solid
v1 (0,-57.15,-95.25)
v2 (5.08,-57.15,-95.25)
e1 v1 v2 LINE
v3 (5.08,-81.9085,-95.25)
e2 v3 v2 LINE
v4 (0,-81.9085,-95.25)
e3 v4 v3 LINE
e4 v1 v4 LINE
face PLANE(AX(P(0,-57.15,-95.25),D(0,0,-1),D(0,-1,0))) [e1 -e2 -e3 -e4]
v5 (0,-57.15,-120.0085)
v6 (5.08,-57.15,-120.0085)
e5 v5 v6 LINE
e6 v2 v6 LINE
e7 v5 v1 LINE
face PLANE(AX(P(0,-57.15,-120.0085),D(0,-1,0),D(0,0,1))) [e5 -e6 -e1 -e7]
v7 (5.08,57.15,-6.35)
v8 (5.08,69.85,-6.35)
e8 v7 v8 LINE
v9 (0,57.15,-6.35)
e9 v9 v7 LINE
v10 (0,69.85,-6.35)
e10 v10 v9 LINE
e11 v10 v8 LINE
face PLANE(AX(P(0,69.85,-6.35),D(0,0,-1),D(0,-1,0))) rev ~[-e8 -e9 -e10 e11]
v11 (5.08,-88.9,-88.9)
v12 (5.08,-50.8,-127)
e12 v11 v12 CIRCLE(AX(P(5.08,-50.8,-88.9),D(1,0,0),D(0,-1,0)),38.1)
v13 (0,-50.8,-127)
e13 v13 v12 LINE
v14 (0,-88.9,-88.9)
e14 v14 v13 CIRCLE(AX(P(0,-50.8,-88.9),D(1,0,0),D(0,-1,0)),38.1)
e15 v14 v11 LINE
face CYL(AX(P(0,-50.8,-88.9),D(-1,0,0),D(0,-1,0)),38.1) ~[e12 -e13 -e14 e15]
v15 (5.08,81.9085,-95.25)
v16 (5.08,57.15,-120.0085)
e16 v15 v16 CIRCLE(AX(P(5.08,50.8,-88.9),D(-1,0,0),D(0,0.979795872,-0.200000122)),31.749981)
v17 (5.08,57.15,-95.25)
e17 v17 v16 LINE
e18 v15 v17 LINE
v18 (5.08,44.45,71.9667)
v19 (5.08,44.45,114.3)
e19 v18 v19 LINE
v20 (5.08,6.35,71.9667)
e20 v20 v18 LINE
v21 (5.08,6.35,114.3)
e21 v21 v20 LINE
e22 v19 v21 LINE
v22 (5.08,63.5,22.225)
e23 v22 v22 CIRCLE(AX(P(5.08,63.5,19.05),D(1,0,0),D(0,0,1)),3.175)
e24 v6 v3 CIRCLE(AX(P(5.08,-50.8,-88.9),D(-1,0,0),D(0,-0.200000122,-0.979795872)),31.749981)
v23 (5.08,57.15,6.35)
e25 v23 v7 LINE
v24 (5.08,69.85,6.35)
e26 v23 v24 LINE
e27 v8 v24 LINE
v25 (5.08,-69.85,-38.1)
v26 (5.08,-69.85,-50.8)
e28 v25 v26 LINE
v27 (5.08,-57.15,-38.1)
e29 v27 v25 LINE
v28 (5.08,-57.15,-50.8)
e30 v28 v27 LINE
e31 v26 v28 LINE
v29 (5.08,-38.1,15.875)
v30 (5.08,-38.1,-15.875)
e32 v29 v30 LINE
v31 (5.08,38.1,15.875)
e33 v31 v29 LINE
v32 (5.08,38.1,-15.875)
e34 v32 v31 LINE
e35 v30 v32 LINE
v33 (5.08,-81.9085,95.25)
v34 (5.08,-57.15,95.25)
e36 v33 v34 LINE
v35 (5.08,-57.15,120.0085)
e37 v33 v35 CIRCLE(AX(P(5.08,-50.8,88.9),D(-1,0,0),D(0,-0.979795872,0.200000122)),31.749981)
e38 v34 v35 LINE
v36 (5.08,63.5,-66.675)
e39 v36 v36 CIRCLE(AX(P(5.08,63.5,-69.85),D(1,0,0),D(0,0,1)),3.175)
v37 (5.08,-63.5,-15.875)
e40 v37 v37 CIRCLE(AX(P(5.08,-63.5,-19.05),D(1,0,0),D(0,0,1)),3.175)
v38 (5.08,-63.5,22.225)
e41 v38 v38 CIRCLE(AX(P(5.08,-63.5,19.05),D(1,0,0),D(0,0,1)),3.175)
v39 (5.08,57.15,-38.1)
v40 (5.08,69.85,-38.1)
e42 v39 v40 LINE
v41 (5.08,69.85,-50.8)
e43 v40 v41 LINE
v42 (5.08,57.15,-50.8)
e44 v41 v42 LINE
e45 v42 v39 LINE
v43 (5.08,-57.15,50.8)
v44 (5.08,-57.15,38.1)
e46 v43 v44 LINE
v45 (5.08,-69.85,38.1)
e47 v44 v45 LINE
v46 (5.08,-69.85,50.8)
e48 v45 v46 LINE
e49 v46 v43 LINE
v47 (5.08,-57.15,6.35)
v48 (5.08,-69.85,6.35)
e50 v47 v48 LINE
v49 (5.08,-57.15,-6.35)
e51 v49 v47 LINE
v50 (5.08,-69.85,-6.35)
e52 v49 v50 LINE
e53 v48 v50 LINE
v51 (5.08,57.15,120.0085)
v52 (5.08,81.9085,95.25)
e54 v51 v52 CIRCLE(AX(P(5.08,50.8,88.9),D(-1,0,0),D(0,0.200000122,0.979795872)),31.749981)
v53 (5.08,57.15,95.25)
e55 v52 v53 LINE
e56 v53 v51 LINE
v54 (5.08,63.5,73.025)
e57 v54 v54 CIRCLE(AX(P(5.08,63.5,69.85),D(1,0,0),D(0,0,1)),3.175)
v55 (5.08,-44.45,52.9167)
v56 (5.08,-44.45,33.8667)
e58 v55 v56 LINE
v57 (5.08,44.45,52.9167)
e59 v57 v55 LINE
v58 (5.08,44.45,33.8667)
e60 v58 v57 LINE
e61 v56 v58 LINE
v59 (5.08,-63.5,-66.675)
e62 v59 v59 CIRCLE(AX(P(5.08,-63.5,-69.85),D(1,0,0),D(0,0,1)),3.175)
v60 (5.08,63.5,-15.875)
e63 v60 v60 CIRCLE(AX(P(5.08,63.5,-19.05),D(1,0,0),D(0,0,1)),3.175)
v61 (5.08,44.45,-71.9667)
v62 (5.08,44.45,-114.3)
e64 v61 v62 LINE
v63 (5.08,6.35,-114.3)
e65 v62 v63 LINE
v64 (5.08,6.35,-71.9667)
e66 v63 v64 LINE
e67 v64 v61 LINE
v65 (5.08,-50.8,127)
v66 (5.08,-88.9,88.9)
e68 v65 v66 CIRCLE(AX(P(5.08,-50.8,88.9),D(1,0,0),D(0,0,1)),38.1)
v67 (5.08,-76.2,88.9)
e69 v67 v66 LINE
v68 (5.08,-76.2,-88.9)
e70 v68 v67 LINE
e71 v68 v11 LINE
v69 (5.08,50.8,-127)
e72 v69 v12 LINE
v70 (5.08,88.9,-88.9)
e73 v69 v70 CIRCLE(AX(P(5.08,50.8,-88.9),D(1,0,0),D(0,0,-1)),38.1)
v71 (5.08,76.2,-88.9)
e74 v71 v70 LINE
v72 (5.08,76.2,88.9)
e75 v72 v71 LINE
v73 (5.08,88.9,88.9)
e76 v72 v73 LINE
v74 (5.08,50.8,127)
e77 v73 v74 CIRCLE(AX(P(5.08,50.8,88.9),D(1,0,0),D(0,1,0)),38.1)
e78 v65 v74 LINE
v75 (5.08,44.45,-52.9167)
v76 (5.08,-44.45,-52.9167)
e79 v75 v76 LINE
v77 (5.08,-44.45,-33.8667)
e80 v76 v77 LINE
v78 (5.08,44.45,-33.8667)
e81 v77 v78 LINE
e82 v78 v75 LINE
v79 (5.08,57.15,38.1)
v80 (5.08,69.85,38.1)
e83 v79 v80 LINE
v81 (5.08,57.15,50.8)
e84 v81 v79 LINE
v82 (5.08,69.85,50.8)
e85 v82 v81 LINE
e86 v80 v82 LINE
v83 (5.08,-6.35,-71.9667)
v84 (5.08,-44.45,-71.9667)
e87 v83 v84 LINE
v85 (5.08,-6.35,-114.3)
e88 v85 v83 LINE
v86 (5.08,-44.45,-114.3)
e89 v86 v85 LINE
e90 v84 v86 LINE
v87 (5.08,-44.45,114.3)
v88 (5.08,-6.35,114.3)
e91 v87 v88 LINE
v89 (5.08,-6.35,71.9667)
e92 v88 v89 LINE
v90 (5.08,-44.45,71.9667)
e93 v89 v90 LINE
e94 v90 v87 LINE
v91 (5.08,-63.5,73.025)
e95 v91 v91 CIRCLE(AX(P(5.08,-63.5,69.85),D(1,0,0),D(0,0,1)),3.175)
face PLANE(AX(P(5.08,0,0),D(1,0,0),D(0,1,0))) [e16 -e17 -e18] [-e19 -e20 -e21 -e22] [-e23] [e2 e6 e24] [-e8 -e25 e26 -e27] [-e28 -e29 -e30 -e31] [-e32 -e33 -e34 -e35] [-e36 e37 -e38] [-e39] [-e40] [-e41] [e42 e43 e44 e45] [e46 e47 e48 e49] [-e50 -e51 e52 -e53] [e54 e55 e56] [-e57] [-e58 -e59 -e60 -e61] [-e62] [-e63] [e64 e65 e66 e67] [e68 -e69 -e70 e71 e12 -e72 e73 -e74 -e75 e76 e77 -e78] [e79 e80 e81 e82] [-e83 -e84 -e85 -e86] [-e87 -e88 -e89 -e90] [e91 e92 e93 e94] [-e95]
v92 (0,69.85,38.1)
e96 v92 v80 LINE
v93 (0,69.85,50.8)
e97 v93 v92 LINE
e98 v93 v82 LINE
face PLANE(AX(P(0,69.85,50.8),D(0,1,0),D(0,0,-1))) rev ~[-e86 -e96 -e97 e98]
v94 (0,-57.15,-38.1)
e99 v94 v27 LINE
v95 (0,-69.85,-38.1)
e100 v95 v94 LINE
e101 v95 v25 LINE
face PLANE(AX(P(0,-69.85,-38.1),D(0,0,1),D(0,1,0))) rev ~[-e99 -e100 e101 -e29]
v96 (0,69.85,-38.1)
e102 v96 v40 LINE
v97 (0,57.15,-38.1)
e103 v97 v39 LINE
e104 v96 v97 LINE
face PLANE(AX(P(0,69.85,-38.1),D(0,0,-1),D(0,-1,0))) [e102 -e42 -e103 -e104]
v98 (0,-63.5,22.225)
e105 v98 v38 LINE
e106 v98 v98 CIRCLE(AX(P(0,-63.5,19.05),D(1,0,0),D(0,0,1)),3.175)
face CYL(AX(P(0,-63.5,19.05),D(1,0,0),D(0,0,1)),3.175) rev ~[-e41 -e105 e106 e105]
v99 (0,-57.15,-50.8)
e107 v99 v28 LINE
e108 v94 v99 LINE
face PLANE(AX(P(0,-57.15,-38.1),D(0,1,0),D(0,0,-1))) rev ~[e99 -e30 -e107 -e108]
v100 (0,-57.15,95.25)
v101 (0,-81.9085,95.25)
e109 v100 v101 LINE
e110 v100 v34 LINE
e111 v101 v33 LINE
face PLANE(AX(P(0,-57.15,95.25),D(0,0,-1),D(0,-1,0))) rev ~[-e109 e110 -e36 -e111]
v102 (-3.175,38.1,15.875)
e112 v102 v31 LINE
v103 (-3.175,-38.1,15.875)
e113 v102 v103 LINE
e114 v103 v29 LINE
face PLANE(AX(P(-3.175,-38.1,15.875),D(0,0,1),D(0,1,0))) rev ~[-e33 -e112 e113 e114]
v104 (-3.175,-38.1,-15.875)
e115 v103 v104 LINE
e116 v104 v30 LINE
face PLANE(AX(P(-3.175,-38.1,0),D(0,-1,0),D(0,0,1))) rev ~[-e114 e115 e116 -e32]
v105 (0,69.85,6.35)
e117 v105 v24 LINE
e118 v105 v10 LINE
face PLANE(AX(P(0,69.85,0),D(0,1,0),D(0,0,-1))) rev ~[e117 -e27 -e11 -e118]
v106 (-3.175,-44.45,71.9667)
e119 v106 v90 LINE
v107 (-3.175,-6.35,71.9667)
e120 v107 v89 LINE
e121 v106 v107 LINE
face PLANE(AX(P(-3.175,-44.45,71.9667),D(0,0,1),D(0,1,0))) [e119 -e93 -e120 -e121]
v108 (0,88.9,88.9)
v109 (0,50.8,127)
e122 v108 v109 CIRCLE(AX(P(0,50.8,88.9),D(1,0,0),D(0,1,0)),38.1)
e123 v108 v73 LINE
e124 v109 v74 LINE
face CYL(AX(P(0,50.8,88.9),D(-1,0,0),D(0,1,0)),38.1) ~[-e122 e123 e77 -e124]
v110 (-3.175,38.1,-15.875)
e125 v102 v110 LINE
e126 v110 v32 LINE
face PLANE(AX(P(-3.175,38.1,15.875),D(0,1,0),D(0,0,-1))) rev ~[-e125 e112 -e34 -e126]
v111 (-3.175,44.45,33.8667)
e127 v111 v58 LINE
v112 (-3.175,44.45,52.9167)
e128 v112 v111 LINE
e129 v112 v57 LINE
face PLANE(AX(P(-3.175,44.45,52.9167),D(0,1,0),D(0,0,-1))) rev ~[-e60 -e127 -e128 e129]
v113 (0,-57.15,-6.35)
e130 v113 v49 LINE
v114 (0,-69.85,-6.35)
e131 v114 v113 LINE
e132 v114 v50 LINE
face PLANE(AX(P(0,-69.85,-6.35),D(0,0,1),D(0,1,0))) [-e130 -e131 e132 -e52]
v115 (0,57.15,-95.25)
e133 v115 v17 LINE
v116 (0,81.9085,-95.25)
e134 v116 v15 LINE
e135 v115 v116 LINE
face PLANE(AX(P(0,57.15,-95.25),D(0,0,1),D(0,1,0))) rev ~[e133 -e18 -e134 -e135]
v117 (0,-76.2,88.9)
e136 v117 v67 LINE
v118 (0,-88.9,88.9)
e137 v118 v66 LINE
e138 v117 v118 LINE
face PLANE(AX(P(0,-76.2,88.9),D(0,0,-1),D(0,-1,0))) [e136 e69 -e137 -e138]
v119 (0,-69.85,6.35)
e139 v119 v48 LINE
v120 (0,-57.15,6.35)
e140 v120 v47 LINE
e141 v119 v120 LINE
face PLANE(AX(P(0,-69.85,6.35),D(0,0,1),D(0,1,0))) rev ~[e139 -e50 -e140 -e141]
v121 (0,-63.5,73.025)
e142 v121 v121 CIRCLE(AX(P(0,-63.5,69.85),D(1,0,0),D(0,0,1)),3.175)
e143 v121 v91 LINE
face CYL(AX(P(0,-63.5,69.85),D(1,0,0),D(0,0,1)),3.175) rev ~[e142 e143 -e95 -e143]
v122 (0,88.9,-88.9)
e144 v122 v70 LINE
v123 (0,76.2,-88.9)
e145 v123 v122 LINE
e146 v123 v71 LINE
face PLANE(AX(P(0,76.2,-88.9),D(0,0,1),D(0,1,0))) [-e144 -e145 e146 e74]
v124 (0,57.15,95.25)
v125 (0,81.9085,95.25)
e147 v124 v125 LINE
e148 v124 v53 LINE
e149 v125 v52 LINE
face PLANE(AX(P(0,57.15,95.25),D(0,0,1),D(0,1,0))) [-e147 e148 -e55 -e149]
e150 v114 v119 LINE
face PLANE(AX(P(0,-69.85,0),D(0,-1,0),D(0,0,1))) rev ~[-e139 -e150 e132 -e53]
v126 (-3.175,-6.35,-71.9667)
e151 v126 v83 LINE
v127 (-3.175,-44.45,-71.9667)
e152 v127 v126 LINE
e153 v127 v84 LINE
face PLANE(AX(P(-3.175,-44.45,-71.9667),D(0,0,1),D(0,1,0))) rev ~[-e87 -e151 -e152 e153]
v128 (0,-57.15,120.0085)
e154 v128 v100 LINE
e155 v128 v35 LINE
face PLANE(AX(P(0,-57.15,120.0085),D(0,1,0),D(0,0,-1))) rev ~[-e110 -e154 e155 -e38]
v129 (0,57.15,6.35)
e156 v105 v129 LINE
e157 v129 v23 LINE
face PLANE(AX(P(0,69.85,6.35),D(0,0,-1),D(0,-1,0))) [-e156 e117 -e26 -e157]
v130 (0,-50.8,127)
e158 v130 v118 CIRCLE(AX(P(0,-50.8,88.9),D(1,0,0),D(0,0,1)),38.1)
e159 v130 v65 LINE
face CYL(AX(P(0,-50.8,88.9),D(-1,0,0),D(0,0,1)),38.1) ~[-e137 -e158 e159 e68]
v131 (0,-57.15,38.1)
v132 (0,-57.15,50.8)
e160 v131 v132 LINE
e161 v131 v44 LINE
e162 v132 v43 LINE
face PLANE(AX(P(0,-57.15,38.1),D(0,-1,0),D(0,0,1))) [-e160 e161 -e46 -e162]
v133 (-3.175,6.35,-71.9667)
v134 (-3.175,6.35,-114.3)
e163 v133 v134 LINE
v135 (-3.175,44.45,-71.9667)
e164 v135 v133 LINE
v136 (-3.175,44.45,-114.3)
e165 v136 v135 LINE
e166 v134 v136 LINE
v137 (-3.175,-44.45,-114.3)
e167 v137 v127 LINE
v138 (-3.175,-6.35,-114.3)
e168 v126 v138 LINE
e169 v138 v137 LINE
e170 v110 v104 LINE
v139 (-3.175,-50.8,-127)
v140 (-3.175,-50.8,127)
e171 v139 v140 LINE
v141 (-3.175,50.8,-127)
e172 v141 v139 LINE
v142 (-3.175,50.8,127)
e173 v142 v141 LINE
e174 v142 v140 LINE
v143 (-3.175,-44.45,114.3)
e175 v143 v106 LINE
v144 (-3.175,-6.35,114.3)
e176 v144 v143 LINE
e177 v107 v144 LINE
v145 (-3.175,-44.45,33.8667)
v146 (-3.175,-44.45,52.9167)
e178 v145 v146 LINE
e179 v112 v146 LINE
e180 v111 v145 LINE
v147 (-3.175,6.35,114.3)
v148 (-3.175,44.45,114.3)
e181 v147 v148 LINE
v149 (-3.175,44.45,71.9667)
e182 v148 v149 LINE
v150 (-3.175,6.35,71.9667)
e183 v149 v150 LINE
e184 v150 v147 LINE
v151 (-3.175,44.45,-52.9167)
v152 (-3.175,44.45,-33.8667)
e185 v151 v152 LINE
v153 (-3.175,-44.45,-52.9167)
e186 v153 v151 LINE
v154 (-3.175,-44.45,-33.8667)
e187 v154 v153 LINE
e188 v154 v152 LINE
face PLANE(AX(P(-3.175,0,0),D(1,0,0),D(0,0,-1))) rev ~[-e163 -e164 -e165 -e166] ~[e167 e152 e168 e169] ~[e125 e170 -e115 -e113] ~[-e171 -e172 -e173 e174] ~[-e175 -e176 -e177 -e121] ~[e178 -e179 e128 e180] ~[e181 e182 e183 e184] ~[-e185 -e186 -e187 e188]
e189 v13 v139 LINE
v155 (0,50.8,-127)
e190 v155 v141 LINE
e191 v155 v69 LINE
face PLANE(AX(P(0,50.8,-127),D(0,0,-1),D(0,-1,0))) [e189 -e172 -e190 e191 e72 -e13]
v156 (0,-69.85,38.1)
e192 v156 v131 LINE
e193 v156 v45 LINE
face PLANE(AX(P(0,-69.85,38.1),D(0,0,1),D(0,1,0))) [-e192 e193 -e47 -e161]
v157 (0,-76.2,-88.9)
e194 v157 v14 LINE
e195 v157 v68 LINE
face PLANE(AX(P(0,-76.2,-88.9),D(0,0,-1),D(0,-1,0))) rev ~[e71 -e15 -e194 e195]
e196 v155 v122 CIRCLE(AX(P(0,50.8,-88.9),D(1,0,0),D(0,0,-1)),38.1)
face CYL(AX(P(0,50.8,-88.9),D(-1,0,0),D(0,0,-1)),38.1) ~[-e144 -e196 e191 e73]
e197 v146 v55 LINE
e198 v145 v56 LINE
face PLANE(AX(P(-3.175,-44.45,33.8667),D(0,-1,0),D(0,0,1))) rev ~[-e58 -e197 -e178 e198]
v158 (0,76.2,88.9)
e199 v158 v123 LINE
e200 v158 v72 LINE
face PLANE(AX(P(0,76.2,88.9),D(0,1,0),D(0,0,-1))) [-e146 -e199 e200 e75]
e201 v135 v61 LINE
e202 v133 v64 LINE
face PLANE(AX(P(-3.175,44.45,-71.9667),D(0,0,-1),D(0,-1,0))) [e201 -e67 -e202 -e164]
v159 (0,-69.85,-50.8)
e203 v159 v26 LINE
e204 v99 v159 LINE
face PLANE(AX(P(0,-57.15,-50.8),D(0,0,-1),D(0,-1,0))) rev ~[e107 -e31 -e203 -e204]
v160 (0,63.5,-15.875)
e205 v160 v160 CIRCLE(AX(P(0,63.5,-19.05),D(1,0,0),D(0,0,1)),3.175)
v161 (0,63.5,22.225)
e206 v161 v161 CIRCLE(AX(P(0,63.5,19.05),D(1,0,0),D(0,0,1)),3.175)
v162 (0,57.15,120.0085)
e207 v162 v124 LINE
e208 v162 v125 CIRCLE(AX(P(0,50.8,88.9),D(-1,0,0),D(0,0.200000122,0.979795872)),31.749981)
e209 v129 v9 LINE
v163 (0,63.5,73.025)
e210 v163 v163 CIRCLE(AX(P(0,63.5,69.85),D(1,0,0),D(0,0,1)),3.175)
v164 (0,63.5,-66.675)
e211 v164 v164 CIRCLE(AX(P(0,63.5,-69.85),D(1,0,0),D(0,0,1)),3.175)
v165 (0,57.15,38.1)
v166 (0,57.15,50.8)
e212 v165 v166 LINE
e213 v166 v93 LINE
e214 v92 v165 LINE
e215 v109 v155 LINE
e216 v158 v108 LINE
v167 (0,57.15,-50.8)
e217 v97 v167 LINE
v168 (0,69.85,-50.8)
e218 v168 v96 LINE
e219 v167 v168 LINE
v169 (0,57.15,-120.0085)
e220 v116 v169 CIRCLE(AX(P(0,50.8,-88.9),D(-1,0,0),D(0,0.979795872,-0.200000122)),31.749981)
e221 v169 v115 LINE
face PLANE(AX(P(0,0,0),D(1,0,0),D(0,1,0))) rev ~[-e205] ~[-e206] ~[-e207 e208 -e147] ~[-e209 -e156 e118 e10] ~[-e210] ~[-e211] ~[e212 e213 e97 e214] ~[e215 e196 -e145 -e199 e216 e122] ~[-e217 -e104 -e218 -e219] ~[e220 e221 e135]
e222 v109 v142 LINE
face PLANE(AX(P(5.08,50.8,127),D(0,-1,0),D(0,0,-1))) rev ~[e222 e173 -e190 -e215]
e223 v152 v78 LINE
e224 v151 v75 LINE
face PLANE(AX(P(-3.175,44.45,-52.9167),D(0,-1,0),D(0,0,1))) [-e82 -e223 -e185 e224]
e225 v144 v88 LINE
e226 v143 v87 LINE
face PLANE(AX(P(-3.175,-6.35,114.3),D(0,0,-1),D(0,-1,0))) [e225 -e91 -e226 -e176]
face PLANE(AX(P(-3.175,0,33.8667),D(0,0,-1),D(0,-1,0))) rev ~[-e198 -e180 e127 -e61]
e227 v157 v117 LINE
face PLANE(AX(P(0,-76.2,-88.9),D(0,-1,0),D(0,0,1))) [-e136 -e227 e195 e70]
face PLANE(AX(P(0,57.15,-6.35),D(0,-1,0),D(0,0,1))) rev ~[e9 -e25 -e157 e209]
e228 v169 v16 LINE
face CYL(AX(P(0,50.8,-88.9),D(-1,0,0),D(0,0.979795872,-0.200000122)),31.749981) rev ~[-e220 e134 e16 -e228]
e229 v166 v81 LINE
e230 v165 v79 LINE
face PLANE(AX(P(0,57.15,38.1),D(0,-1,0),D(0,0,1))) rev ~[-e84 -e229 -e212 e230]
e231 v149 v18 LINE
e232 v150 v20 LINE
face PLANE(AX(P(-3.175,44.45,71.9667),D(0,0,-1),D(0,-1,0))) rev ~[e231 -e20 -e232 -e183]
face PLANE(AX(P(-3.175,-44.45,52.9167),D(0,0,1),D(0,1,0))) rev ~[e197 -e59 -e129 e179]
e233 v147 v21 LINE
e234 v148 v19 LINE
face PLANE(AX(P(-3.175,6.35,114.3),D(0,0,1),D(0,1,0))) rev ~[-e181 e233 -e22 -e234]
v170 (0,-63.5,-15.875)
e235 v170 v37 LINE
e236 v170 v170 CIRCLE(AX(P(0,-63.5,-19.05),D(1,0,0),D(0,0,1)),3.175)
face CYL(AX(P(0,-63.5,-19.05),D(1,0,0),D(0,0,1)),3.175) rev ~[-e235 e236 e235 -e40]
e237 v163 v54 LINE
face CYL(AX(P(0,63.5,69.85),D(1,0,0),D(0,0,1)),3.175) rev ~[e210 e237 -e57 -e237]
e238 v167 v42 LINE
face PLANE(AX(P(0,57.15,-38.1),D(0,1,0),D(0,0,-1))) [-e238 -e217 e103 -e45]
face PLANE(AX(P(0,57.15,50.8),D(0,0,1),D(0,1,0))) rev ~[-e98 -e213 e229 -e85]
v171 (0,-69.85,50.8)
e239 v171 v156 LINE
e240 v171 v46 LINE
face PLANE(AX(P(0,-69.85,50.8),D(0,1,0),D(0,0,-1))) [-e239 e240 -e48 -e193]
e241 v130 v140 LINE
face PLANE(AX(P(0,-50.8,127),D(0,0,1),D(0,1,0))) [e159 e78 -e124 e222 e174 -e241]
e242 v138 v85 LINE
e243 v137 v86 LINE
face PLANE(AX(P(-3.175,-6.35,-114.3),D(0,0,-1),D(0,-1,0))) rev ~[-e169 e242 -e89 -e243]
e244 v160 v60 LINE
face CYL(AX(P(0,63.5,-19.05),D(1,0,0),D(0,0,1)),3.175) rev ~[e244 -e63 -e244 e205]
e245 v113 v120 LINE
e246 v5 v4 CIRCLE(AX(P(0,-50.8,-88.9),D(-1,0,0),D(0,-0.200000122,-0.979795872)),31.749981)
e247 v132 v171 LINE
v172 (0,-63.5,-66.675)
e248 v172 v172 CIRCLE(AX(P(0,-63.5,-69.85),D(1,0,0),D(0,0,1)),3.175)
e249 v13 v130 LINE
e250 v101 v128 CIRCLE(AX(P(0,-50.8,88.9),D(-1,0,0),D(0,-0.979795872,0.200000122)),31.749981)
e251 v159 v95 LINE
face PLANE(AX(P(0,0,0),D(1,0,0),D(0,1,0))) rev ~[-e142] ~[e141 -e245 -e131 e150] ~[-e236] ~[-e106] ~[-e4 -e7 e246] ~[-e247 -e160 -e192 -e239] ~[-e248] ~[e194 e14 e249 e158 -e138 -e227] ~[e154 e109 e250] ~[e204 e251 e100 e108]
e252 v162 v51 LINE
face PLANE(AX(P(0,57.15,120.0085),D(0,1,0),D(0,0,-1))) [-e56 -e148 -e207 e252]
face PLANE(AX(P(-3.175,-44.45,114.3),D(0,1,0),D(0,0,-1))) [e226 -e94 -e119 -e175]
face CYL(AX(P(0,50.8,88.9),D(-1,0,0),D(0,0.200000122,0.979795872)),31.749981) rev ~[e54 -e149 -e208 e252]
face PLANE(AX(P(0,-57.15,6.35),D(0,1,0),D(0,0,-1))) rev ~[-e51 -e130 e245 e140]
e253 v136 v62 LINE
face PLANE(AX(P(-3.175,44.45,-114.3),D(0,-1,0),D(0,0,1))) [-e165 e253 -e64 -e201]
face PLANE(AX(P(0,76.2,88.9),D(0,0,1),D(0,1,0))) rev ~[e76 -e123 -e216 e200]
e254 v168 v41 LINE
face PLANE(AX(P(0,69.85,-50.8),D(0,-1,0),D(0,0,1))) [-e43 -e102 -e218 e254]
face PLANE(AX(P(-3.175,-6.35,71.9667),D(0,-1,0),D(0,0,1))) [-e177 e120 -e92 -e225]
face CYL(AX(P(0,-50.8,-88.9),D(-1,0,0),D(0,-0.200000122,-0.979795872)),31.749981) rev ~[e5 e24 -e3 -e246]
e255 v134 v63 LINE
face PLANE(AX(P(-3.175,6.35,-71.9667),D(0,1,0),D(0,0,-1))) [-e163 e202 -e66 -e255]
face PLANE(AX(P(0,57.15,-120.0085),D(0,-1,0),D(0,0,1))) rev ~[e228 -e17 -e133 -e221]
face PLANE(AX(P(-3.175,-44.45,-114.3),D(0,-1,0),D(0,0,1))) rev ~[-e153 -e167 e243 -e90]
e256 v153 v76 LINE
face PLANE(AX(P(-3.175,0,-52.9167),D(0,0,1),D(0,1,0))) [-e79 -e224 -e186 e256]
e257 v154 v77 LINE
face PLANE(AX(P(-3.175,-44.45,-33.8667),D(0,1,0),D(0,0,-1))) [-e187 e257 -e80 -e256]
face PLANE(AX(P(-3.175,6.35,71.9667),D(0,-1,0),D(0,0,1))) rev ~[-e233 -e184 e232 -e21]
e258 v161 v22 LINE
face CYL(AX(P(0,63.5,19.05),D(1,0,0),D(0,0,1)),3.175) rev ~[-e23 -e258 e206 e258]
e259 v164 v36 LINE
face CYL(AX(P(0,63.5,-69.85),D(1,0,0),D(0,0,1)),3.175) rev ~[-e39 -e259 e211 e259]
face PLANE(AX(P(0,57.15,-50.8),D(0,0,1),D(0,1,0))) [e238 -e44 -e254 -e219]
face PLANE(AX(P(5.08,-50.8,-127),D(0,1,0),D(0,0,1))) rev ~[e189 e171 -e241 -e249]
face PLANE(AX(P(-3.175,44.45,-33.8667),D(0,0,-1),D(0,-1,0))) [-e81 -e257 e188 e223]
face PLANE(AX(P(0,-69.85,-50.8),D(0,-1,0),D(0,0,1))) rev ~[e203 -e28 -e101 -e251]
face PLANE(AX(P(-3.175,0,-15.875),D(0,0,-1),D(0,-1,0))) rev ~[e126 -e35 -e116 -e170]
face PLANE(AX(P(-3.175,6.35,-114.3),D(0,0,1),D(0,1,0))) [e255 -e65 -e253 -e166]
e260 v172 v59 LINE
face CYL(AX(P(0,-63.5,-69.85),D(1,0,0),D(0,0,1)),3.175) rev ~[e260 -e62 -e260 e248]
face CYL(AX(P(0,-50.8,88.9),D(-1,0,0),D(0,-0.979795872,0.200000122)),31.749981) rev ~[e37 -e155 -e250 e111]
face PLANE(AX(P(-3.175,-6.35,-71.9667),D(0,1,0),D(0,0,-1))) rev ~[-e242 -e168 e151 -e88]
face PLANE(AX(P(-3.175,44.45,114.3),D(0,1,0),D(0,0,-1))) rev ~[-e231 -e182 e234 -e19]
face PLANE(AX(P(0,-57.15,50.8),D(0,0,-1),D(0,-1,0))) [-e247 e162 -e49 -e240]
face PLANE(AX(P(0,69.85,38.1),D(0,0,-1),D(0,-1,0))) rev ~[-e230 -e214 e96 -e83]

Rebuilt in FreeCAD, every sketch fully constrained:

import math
import FreeCAD as App
import Part
import Sketcher
from FreeCAD import Vector
Q = App.Units.Quantity

doc = App.newDocument("Part")
body = doc.addObject("PartDesign::Body", "Body")

sketch1 = body.newObject("Sketcher::SketchObject", "Sketch")
sketch1.AttachmentSupport = (doc.getObject("YZ_Plane"), [""])
sketch1.MapMode = "FlatFace"
sketch1.addGeometry([
    Part.LineSegment(Vector(50.8, 127, 0), Vector(-50.8, 127, 0)),
    Part.ArcOfCircle(Part.Circle(Vector(-50.8, 88.9, 0), Vector(0, 0, 1), 38.1), math.radians(90), math.radians(180)),
    Part.LineSegment(Vector(-88.9, 88.9, 0), Vector(-76.2, 88.9, 0)),
    Part.LineSegment(Vector(-76.2, 88.9, 0), Vector(-76.2, -88.9, 0)),
    Part.LineSegment(Vector(-76.2, -88.9, 0), Vector(-88.9, -88.9, 0)),
    Part.ArcOfCircle(Part.Circle(Vector(-50.8, -88.9, 0), Vector(0, 0, 1), 38.1), math.radians(180), math.radians(270)),
    Part.LineSegment(Vector(-50.8, -127, 0), Vector(50.8, -127, 0)),
    Part.ArcOfCircle(Part.Circle(Vector(50.8, -88.9, 0), Vector(0, 0, 1), 38.1), math.radians(-90), math.radians(0)),
    Part.LineSegment(Vector(88.9, -88.9, 0), Vector(76.2, -88.9, 0)),
    Part.LineSegment(Vector(76.2, -88.9, 0), Vector(76.2, 88.9, 0)),
    Part.LineSegment(Vector(76.2, 88.9, 0), Vector(88.9, 88.9, 0)),
    Part.ArcOfCircle(Part.Circle(Vector(50.8, 88.9, 0), Vector(0, 0, 1), 38.1), math.radians(0), math.radians(90)),
], False)
sketch1.addConstraint([
    Sketcher.Constraint("Tangent", 0, 2, 1, 1),
    Sketcher.Constraint("Coincident", 1, 2, 2, 1),
    Sketcher.Constraint("Coincident", 2, 2, 3, 1),
    Sketcher.Constraint("Coincident", 3, 2, 4, 1),
    Sketcher.Constraint("Coincident", 4, 2, 5, 1),
    Sketcher.Constraint("Tangent", 5, 2, 6, 1),
    Sketcher.Constraint("Tangent", 6, 2, 7, 1),
    Sketcher.Constraint("Coincident", 7, 2, 8, 1),
    Sketcher.Constraint("Coincident", 8, 2, 9, 1),
    Sketcher.Constraint("Coincident", 9, 2, 10, 1),
    Sketcher.Constraint("Coincident", 10, 2, 11, 1),
    Sketcher.Constraint("Tangent", 11, 2, 0, 1),
    Sketcher.Constraint("Horizontal", 0),
    Sketcher.Constraint("Horizontal", 2),
    Sketcher.Constraint("Vertical", 3),
    Sketcher.Constraint("Horizontal", 4),
    Sketcher.Constraint("Horizontal", 6),
    Sketcher.Constraint("Horizontal", 8),
    Sketcher.Constraint("Vertical", 9),
    Sketcher.Constraint("Horizontal", 10),
    Sketcher.Constraint("Equal", 1, 5),
    Sketcher.Constraint("Equal", 5, 7),
    Sketcher.Constraint("Equal", 7, 11),
    Sketcher.Constraint("Symmetric", 1, 3, 7, 3, -1, 1),
    Sketcher.Constraint("Symmetric", 2, 2, 8, 2, -1, 1),
    Sketcher.Constraint("Symmetric", 4, 2, 10, 2, -1, 1),
    Sketcher.Constraint("Symmetric", 4, 2, 7, 2, -2),
    Sketcher.Constraint("Horizontal", 11, 3, 1, 2),
    Sketcher.Constraint("Radius", 1, Q("1.5 in")),
    Sketcher.Constraint("DistanceY", -1, 1, 0, 2, Q("5 in")),
    Sketcher.Constraint("DistanceX", 2, 2, -1, 1, Q("3 in")),
    Sketcher.Constraint("DistanceX", 2, 2, 1, 3, Q("1 in")),
])
pad1 = body.newObject("PartDesign::Pad", "Pad")
pad1.Profile = sketch1
pad1.Length = Q("0.2 in")

sketch2 = body.newObject("Sketcher::SketchObject", "Sketch001")
sketch2.AttachmentSupport = (doc.getObject("YZ_Plane"), [""])
sketch2.MapMode = "FlatFace"
sketch2.AttachmentOffset = App.Placement(Vector(0, 0, 0.2 * 25.4), App.Rotation())
sketch2.addGeometry([
    Part.LineSegment(Vector(50.8, -127, 0), Vector(50.8, 127, 0)),
    Part.LineSegment(Vector(50.8, 127, 0), Vector(-50.8, 127, 0)),
    Part.LineSegment(Vector(-50.8, 127, 0), Vector(-50.8, -127, 0)),
    Part.LineSegment(Vector(-50.8, -127, 0), Vector(50.8, -127, 0)),
], False)
sketch2.addConstraint([
    Sketcher.Constraint("Coincident", 0, 2, 1, 1),
    Sketcher.Constraint("Coincident", 1, 2, 2, 1),
    Sketcher.Constraint("Coincident", 2, 2, 3, 1),
    Sketcher.Constraint("Coincident", 3, 2, 0, 1),
    Sketcher.Constraint("Vertical", 0),
    Sketcher.Constraint("Horizontal", 1),
    Sketcher.Constraint("Vertical", 2),
    Sketcher.Constraint("Horizontal", 3),
    Sketcher.Constraint("Symmetric", 0, 2, 2, 2, -1, 1),
    Sketcher.Constraint("DistanceX", 1, 2, 1, 1, Q("4 in")),
    Sketcher.Constraint("DistanceY", 0, 1, 0, 2, Q("10 in")),
])
pad2 = body.newObject("PartDesign::Pad", "Pad001")
pad2.Profile = sketch2
pad2.Length = Q("0.325 in")
pad2.Reversed = True

sketch3 = body.newObject("Sketcher::SketchObject", "Sketch002")
sketch3.AttachmentSupport = (doc.getObject("YZ_Plane"), [""])
sketch3.MapMode = "FlatFace"
sketch3.AttachmentOffset = App.Placement(Vector(0, 0, -0.125 * 25.4), App.Rotation())
sketch3.addGeometry([
    Part.LineSegment(Vector(-6.35, -114.3, 0), Vector(-44.45, -114.3, 0)),
    Part.LineSegment(Vector(-44.45, -114.3, 0), Vector(-44.45, -71.9667, 0)),
    Part.LineSegment(Vector(-44.45, -71.9667, 0), Vector(-6.35, -71.9667, 0)),
    Part.LineSegment(Vector(-6.35, -71.9667, 0), Vector(-6.35, -114.3, 0)),
    Part.LineSegment(Vector(-38.1, 15.875, 0), Vector(38.1, 15.875, 0)),
    Part.LineSegment(Vector(38.1, 15.875, 0), Vector(38.1, -15.875, 0)),
    Part.LineSegment(Vector(38.1, -15.875, 0), Vector(-38.1, -15.875, 0)),
    Part.LineSegment(Vector(-38.1, -15.875, 0), Vector(-38.1, 15.875, 0)),
    Part.LineSegment(Vector(44.45, -52.9167, 0), Vector(-44.45, -52.9167, 0)),
    Part.LineSegment(Vector(-44.45, -52.9167, 0), Vector(-44.45, -33.8667, 0)),
    Part.LineSegment(Vector(-44.45, -33.8667, 0), Vector(44.45, -33.8667, 0)),
    Part.LineSegment(Vector(44.45, -33.8667, 0), Vector(44.45, -52.9167, 0)),
    Part.LineSegment(Vector(-44.45, 52.9167, 0), Vector(44.45, 52.9167, 0)),
    Part.LineSegment(Vector(44.45, 52.9167, 0), Vector(44.45, 33.8667, 0)),
    Part.LineSegment(Vector(44.45, 33.8667, 0), Vector(-44.45, 33.8667, 0)),
    Part.LineSegment(Vector(-44.45, 33.8667, 0), Vector(-44.45, 52.9167, 0)),
    Part.LineSegment(Vector(44.45, -71.9667, 0), Vector(44.45, -114.3, 0)),
    Part.LineSegment(Vector(44.45, -114.3, 0), Vector(6.35, -114.3, 0)),
    Part.LineSegment(Vector(6.35, -114.3, 0), Vector(6.35, -71.9667, 0)),
    Part.LineSegment(Vector(6.35, -71.9667, 0), Vector(44.45, -71.9667, 0)),
    Part.LineSegment(Vector(-44.45, 71.9667, 0), Vector(-44.45, 114.3, 0)),
    Part.LineSegment(Vector(-44.45, 114.3, 0), Vector(-6.35, 114.3, 0)),
    Part.LineSegment(Vector(-6.35, 114.3, 0), Vector(-6.35, 71.9667, 0)),
    Part.LineSegment(Vector(-6.35, 71.9667, 0), Vector(-44.45, 71.9667, 0)),
    Part.LineSegment(Vector(6.35, 71.9667, 0), Vector(6.35, 114.3, 0)),
    Part.LineSegment(Vector(6.35, 114.3, 0), Vector(44.45, 114.3, 0)),
    Part.LineSegment(Vector(44.45, 114.3, 0), Vector(44.45, 71.9667, 0)),
    Part.LineSegment(Vector(44.45, 71.9667, 0), Vector(6.35, 71.9667, 0)),
], False)
sketch3.addConstraint([
    Sketcher.Constraint("Coincident", 0, 2, 1, 1),
    Sketcher.Constraint("Coincident", 1, 2, 2, 1),
    Sketcher.Constraint("Coincident", 2, 2, 3, 1),
    Sketcher.Constraint("Coincident", 3, 2, 0, 1),
    Sketcher.Constraint("Coincident", 4, 2, 5, 1),
    Sketcher.Constraint("Coincident", 5, 2, 6, 1),
    Sketcher.Constraint("Coincident", 6, 2, 7, 1),
    Sketcher.Constraint("Coincident", 7, 2, 4, 1),
    Sketcher.Constraint("Coincident", 8, 2, 9, 1),
    Sketcher.Constraint("Coincident", 9, 2, 10, 1),
    Sketcher.Constraint("Coincident", 10, 2, 11, 1),
    Sketcher.Constraint("Coincident", 11, 2, 8, 1),
    Sketcher.Constraint("Coincident", 12, 2, 13, 1),
    Sketcher.Constraint("Coincident", 13, 2, 14, 1),
    Sketcher.Constraint("Coincident", 14, 2, 15, 1),
    Sketcher.Constraint("Coincident", 15, 2, 12, 1),
    Sketcher.Constraint("Coincident", 16, 2, 17, 1),
    Sketcher.Constraint("Coincident", 17, 2, 18, 1),
    Sketcher.Constraint("Coincident", 18, 2, 19, 1),
    Sketcher.Constraint("Coincident", 19, 2, 16, 1),
    Sketcher.Constraint("Coincident", 20, 2, 21, 1),
    Sketcher.Constraint("Coincident", 21, 2, 22, 1),
    Sketcher.Constraint("Coincident", 22, 2, 23, 1),
    Sketcher.Constraint("Coincident", 23, 2, 20, 1),
    Sketcher.Constraint("Coincident", 24, 2, 25, 1),
    Sketcher.Constraint("Coincident", 25, 2, 26, 1),
    Sketcher.Constraint("Coincident", 26, 2, 27, 1),
    Sketcher.Constraint("Coincident", 27, 2, 24, 1),
    Sketcher.Constraint("Horizontal", 0),
    Sketcher.Constraint("Vertical", 1),
    Sketcher.Constraint("Horizontal", 2),
    Sketcher.Constraint("Vertical", 3),
    Sketcher.Constraint("Horizontal", 4),
    Sketcher.Constraint("Vertical", 5),
    Sketcher.Constraint("Horizontal", 6),
    Sketcher.Constraint("Vertical", 7),
    Sketcher.Constraint("Horizontal", 8),
    Sketcher.Constraint("Vertical", 9),
    Sketcher.Constraint("Horizontal", 10),
    Sketcher.Constraint("Vertical", 11),
    Sketcher.Constraint("Horizontal", 12),
    Sketcher.Constraint("Vertical", 13),
    Sketcher.Constraint("Horizontal", 14),
    Sketcher.Constraint("Vertical", 15),
    Sketcher.Constraint("Vertical", 16),
    Sketcher.Constraint("Horizontal", 17),
    Sketcher.Constraint("Vertical", 18),
    Sketcher.Constraint("Horizontal", 19),
    Sketcher.Constraint("Vertical", 20),
    Sketcher.Constraint("Horizontal", 21),
    Sketcher.Constraint("Vertical", 22),
    Sketcher.Constraint("Horizontal", 23),
    Sketcher.Constraint("Vertical", 24),
    Sketcher.Constraint("Horizontal", 25),
    Sketcher.Constraint("Vertical", 26),
    Sketcher.Constraint("Horizontal", 27),
    Sketcher.Constraint("Symmetric", 4, 2, 6, 2, -1, 1),
    Sketcher.Constraint("Symmetric", 8, 2, 12, 2, -1, 1),
    Sketcher.Constraint("Symmetric", 10, 2, 14, 2, -1, 1),
    Sketcher.Constraint("Symmetric", 16, 2, 20, 2, -1, 1),
    Sketcher.Constraint("Symmetric", 18, 2, 22, 2, -1, 1),
    Sketcher.Constraint("Symmetric", 3, 2, 24, 2, -1, 1),
    Sketcher.Constraint("Symmetric", 1, 2, 26, 2, -1, 1),
    Sketcher.Constraint("Symmetric", 0, 2, 16, 2, -2),
    Sketcher.Constraint("Symmetric", 2, 2, 18, 2, -2),
    Sketcher.Constraint("Vertical", 1, 2, 8, 2),
    Sketcher.Constraint("Vertical", 11, 2, 12, 2),
    Sketcher.Constraint("DistanceY", 5, 2, 5, 1, Q("1.25 in")),
    Sketcher.Constraint("DistanceY", 9, 1, 9, 2, Q("0.75 in")),
    Sketcher.Constraint("DistanceX", 3, 2, 17, 2, Q("0.5 in")),
    Sketcher.Constraint("DistanceX", 4, 1, 4, 2, Q("3 in")),
    Sketcher.Constraint("DistanceX", 0, 2, -1, 1, Q("1.75 in")),
    Sketcher.Constraint("DistanceY", 1, 2, 8, 2, Q("0.75 in")),
    Sketcher.Constraint("DistanceY", 1, 1, 1, 2, Q("42.3333 mm")),
    Sketcher.Constraint("DistanceY", 0, 2, -1, 1, Q("4.5 in")),
])
pocket1 = body.newObject("PartDesign::Pocket", "Pocket")
pocket1.Profile = sketch3
pocket1.Length = Q("1 in")
pocket1.Reversed = True

sketch4 = body.newObject("Sketcher::SketchObject", "Sketch003")
sketch4.AttachmentSupport = (doc.getObject("YZ_Plane"), [""])
sketch4.MapMode = "FlatFace"
sketch4.addGeometry([
    Part.Circle(Vector(63.5, 69.85, 0), Vector(0, 0, 1), 3.175),
    Part.Circle(Vector(63.5, 19.05, 0), Vector(0, 0, 1), 3.175),
    Part.Circle(Vector(63.5, -19.05, 0), Vector(0, 0, 1), 3.175),
    Part.Circle(Vector(63.5, -69.85, 0), Vector(0, 0, 1), 3.175),
    Part.Circle(Vector(-63.5, -69.85, 0), Vector(0, 0, 1), 3.175),
    Part.Circle(Vector(-63.5, -19.05, 0), Vector(0, 0, 1), 3.175),
    Part.Circle(Vector(-63.5, 19.05, 0), Vector(0, 0, 1), 3.175),
    Part.Circle(Vector(-63.5, 69.85, 0), Vector(0, 0, 1), 3.175),
], False)
sketch4.addConstraint([
    Sketcher.Constraint("Equal", 0, 1),
    Sketcher.Constraint("Equal", 1, 2),
    Sketcher.Constraint("Equal", 2, 3),
    Sketcher.Constraint("Equal", 3, 4),
    Sketcher.Constraint("Equal", 4, 5),
    Sketcher.Constraint("Equal", 5, 6),
    Sketcher.Constraint("Equal", 6, 7),
    Sketcher.Constraint("Symmetric", 0, 3, 4, 3, -1, 1),
    Sketcher.Constraint("Symmetric", 1, 3, 5, 3, -1, 1),
    Sketcher.Constraint("Symmetric", 2, 3, 6, 3, -1, 1),
    Sketcher.Constraint("Symmetric", 3, 3, 7, 3, -1, 1),
    Sketcher.Constraint("Symmetric", 3, 3, 4, 3, -2),
    Sketcher.Constraint("Symmetric", 2, 3, 5, 3, -2),
    Sketcher.Constraint("Vertical", 0, 3, 1, 3),
    Sketcher.Constraint("Diameter", 0, Q("0.25 in")),
    Sketcher.Constraint("DistanceY", 1, 3, 0, 3, Q("2 in")),
    Sketcher.Constraint("DistanceX", 4, 3, 3, 3, Q("5 in")),
    Sketcher.Constraint("DistanceY", 2, 3, 1, 3, Q("1.5 in")),
])
doc.recompute()
hole = body.newObject("PartDesign::Hole", "Hole")
hole.Profile = sketch4
hole.ThreadType = "None"
hole.Diameter = Q("0.25 in")
hole.DepthType = "ThroughAll"
hole.Reversed = True

sketch5 = body.newObject("Sketcher::SketchObject", "Sketch004")
sketch5.AttachmentSupport = (doc.getObject("YZ_Plane"), [""])
sketch5.MapMode = "FlatFace"
sketch5.addGeometry([
    Part.LineSegment(Vector(57.15, 50.8, 0), Vector(69.85, 50.8, 0)),
    Part.LineSegment(Vector(69.85, 50.8, 0), Vector(69.85, 38.1, 0)),
    Part.LineSegment(Vector(69.85, 38.1, 0), Vector(57.15, 38.1, 0)),
    Part.LineSegment(Vector(57.15, 38.1, 0), Vector(57.15, 50.8, 0)),
    Part.LineSegment(Vector(57.15, -6.35, 0), Vector(57.15, 6.35, 0)),
    Part.LineSegment(Vector(57.15, 6.35, 0), Vector(69.85, 6.35, 0)),
    Part.LineSegment(Vector(69.85, 6.35, 0), Vector(69.85, -6.35, 0)),
    Part.LineSegment(Vector(69.85, -6.35, 0), Vector(57.15, -6.35, 0)),
    Part.LineSegment(Vector(-57.15, 6.35, 0), Vector(-57.15, -6.35, 0)),
    Part.LineSegment(Vector(-57.15, -6.35, 0), Vector(-69.85, -6.35, 0)),
    Part.LineSegment(Vector(-69.85, -6.35, 0), Vector(-69.85, 6.35, 0)),
    Part.LineSegment(Vector(-69.85, 6.35, 0), Vector(-57.15, 6.35, 0)),
    Part.LineSegment(Vector(69.85, -38.1, 0), Vector(69.85, -50.8, 0)),
    Part.LineSegment(Vector(69.85, -50.8, 0), Vector(57.15, -50.8, 0)),
    Part.LineSegment(Vector(57.15, -50.8, 0), Vector(57.15, -38.1, 0)),
    Part.LineSegment(Vector(57.15, -38.1, 0), Vector(69.85, -38.1, 0)),
    Part.ArcOfCircle(Part.Circle(Vector(-50.8, 88.9, 0), Vector(0, 0, 1), 31.749981), math.radians(101.536966), math.radians(168.463034)),
    Part.LineSegment(Vector(-57.15, 120.0085, 0), Vector(-57.15, 95.25, 0)),
    Part.LineSegment(Vector(-57.15, 95.25, 0), Vector(-81.9085, 95.25, 0)),
    Part.LineSegment(Vector(-57.15, -95.25, 0), Vector(-57.15, -120.0085, 0)),
    Part.ArcOfCircle(Part.Circle(Vector(-50.8, -88.9, 0), Vector(0, 0, 1), 31.749981), math.radians(-168.463034), math.radians(-101.536966)),
    Part.LineSegment(Vector(-81.9085, -95.25, 0), Vector(-57.15, -95.25, 0)),
    Part.LineSegment(Vector(57.15, 95.25, 0), Vector(57.15, 120.0085, 0)),
    Part.ArcOfCircle(Part.Circle(Vector(50.8, 88.9, 0), Vector(0, 0, 1), 31.749981), math.radians(11.536966), math.radians(78.463034)),
    Part.LineSegment(Vector(81.9085, 95.25, 0), Vector(57.15, 95.25, 0)),
    Part.LineSegment(Vector(57.15, -95.25, 0), Vector(81.9085, -95.25, 0)),
    Part.ArcOfCircle(Part.Circle(Vector(50.8, -88.9, 0), Vector(0, 0, 1), 31.749981), math.radians(-78.463034), math.radians(-11.536966)),
    Part.LineSegment(Vector(57.15, -120.0085, 0), Vector(57.15, -95.25, 0)),
    Part.LineSegment(Vector(-69.85, 38.1, 0), Vector(-69.85, 50.8, 0)),
    Part.LineSegment(Vector(-69.85, 50.8, 0), Vector(-57.15, 50.8, 0)),
    Part.LineSegment(Vector(-57.15, 50.8, 0), Vector(-57.15, 38.1, 0)),
    Part.LineSegment(Vector(-57.15, 38.1, 0), Vector(-69.85, 38.1, 0)),
    Part.LineSegment(Vector(-57.15, -38.1, 0), Vector(-57.15, -50.8, 0)),
    Part.LineSegment(Vector(-57.15, -50.8, 0), Vector(-69.85, -50.8, 0)),
    Part.LineSegment(Vector(-69.85, -50.8, 0), Vector(-69.85, -38.1, 0)),
    Part.LineSegment(Vector(-69.85, -38.1, 0), Vector(-57.15, -38.1, 0)),
], False)
sketch5.addConstraint([
    Sketcher.Constraint("Coincident", 0, 2, 1, 1),
    Sketcher.Constraint("Coincident", 1, 2, 2, 1),
    Sketcher.Constraint("Coincident", 2, 2, 3, 1),
    Sketcher.Constraint("Coincident", 3, 2, 0, 1),
    Sketcher.Constraint("Coincident", 4, 2, 5, 1),
    Sketcher.Constraint("Coincident", 5, 2, 6, 1),
    Sketcher.Constraint("Coincident", 6, 2, 7, 1),
    Sketcher.Constraint("Coincident", 7, 2, 4, 1),
    Sketcher.Constraint("Coincident", 8, 2, 9, 1),
    Sketcher.Constraint("Coincident", 9, 2, 10, 1),
    Sketcher.Constraint("Coincident", 10, 2, 11, 1),
    Sketcher.Constraint("Coincident", 11, 2, 8, 1),
    Sketcher.Constraint("Coincident", 12, 2, 13, 1),
    Sketcher.Constraint("Coincident", 13, 2, 14, 1),
    Sketcher.Constraint("Coincident", 14, 2, 15, 1),
    Sketcher.Constraint("Coincident", 15, 2, 12, 1),
    Sketcher.Constraint("Coincident", 16, 1, 17, 1),
    Sketcher.Constraint("Coincident", 17, 2, 18, 1),
    Sketcher.Constraint("Coincident", 18, 2, 16, 2),
    Sketcher.Constraint("Coincident", 19, 2, 20, 2),
    Sketcher.Constraint("Coincident", 20, 1, 21, 1),
    Sketcher.Constraint("Coincident", 21, 2, 19, 1),
    Sketcher.Constraint("Coincident", 22, 2, 23, 2),
    Sketcher.Constraint("Coincident", 23, 1, 24, 1),
    Sketcher.Constraint("Coincident", 24, 2, 22, 1),
    Sketcher.Constraint("Coincident", 25, 2, 26, 2),
    Sketcher.Constraint("Coincident", 26, 1, 27, 1),
    Sketcher.Constraint("Coincident", 27, 2, 25, 1),
    Sketcher.Constraint("Coincident", 28, 2, 29, 1),
    Sketcher.Constraint("Coincident", 29, 2, 30, 1),
    Sketcher.Constraint("Coincident", 30, 2, 31, 1),
    Sketcher.Constraint("Coincident", 31, 2, 28, 1),
    Sketcher.Constraint("Coincident", 32, 2, 33, 1),
    Sketcher.Constraint("Coincident", 33, 2, 34, 1),
    Sketcher.Constraint("Coincident", 34, 2, 35, 1),
    Sketcher.Constraint("Coincident", 35, 2, 32, 1),
    Sketcher.Constraint("Horizontal", 0),
    Sketcher.Constraint("Vertical", 1),
    Sketcher.Constraint("Horizontal", 2),
    Sketcher.Constraint("Vertical", 3),
    Sketcher.Constraint("Vertical", 4),
    Sketcher.Constraint("Horizontal", 5),
    Sketcher.Constraint("Vertical", 6),
    Sketcher.Constraint("Horizontal", 7),
    Sketcher.Constraint("Vertical", 8),
    Sketcher.Constraint("Horizontal", 9),
    Sketcher.Constraint("Vertical", 10),
    Sketcher.Constraint("Horizontal", 11),
    Sketcher.Constraint("Vertical", 12),
    Sketcher.Constraint("Horizontal", 13),
    Sketcher.Constraint("Vertical", 14),
    Sketcher.Constraint("Horizontal", 15),
    Sketcher.Constraint("Vertical", 17),
    Sketcher.Constraint("Horizontal", 18),
    Sketcher.Constraint("Vertical", 19),
    Sketcher.Constraint("Horizontal", 21),
    Sketcher.Constraint("Vertical", 22),
    Sketcher.Constraint("Horizontal", 24),
    Sketcher.Constraint("Horizontal", 25),
    Sketcher.Constraint("Vertical", 27),
    Sketcher.Constraint("Vertical", 28),
    Sketcher.Constraint("Horizontal", 29),
    Sketcher.Constraint("Vertical", 30),
    Sketcher.Constraint("Horizontal", 31),
    Sketcher.Constraint("Vertical", 32),
    Sketcher.Constraint("Horizontal", 33),
    Sketcher.Constraint("Vertical", 34),
    Sketcher.Constraint("Horizontal", 35),
    Sketcher.Constraint("Equal", 16, 20),
    Sketcher.Constraint("Equal", 20, 23),
    Sketcher.Constraint("Equal", 23, 26),
    Sketcher.Constraint("Symmetric", 20, 3, 23, 3, -1, 1),
    Sketcher.Constraint("Symmetric", 16, 3, 26, 3, -1, 1),
    Sketcher.Constraint("Symmetric", 4, 2, 8, 2, -1, 1),
    Sketcher.Constraint("Symmetric", 6, 2, 10, 2, -1, 1),
    Sketcher.Constraint("Symmetric", 21, 2, 24, 2, -1, 1),
    Sketcher.Constraint("Symmetric", 17, 2, 27, 2, -1, 1),
    Sketcher.Constraint("Symmetric", 12, 2, 28, 2, -1, 1),
    Sketcher.Constraint("Symmetric", 14, 2, 30, 2, -1, 1),
    Sketcher.Constraint("Symmetric", 3, 2, 32, 2, -1, 1),
    Sketcher.Constraint("Symmetric", 1, 2, 34, 2, -1, 1),
    Sketcher.Constraint("Symmetric", 16, 3, 23, 3, -2),
    Sketcher.Constraint("Symmetric", 17, 2, 24, 2, -2),
    Sketcher.Constraint("Symmetric", 0, 2, 28, 2, -2),
    Sketcher.Constraint("Symmetric", 2, 2, 30, 2, -2),
    Sketcher.Constraint("Horizontal", 7, 2, 8, 2),
    Sketcher.Constraint("Vertical", 3, 2, 4, 2),
    Sketcher.Constraint("Vertical", 1, 2, 5, 2),
    Sketcher.Constraint("Vertical", 11, 2, 16, 1),
    Sketcher.Constraint("Equal", 35, 1),
    Sketcher.Constraint("Equal", 3, 4),
    Sketcher.Constraint("Equal", 25, 17),
    Sketcher.Constraint("Radius", 16, Q("1.25 in")),
    Sketcher.Constraint("DistanceX", 0, 1, 0, 2, Q("0.5 in")),
    Sketcher.Constraint("DistanceX", 16, 3, -1, 1, Q("2 in")),
    Sketcher.Constraint("DistanceY", -1, 1, 0, 2, Q("2 in")),
    Sketcher.Constraint("DistanceY", 1, 2, 23, 3, Q("2 in")),
    Sketcher.Constraint("DistanceX", 23, 3, 0, 2, Q("0.75 in")),
])
pocket2 = body.newObject("PartDesign::Pocket", "Pocket001")
pocket2.Profile = sketch5
pocket2.Length = Q("1 in")
pocket2.Reversed = True

doc.recompute()
